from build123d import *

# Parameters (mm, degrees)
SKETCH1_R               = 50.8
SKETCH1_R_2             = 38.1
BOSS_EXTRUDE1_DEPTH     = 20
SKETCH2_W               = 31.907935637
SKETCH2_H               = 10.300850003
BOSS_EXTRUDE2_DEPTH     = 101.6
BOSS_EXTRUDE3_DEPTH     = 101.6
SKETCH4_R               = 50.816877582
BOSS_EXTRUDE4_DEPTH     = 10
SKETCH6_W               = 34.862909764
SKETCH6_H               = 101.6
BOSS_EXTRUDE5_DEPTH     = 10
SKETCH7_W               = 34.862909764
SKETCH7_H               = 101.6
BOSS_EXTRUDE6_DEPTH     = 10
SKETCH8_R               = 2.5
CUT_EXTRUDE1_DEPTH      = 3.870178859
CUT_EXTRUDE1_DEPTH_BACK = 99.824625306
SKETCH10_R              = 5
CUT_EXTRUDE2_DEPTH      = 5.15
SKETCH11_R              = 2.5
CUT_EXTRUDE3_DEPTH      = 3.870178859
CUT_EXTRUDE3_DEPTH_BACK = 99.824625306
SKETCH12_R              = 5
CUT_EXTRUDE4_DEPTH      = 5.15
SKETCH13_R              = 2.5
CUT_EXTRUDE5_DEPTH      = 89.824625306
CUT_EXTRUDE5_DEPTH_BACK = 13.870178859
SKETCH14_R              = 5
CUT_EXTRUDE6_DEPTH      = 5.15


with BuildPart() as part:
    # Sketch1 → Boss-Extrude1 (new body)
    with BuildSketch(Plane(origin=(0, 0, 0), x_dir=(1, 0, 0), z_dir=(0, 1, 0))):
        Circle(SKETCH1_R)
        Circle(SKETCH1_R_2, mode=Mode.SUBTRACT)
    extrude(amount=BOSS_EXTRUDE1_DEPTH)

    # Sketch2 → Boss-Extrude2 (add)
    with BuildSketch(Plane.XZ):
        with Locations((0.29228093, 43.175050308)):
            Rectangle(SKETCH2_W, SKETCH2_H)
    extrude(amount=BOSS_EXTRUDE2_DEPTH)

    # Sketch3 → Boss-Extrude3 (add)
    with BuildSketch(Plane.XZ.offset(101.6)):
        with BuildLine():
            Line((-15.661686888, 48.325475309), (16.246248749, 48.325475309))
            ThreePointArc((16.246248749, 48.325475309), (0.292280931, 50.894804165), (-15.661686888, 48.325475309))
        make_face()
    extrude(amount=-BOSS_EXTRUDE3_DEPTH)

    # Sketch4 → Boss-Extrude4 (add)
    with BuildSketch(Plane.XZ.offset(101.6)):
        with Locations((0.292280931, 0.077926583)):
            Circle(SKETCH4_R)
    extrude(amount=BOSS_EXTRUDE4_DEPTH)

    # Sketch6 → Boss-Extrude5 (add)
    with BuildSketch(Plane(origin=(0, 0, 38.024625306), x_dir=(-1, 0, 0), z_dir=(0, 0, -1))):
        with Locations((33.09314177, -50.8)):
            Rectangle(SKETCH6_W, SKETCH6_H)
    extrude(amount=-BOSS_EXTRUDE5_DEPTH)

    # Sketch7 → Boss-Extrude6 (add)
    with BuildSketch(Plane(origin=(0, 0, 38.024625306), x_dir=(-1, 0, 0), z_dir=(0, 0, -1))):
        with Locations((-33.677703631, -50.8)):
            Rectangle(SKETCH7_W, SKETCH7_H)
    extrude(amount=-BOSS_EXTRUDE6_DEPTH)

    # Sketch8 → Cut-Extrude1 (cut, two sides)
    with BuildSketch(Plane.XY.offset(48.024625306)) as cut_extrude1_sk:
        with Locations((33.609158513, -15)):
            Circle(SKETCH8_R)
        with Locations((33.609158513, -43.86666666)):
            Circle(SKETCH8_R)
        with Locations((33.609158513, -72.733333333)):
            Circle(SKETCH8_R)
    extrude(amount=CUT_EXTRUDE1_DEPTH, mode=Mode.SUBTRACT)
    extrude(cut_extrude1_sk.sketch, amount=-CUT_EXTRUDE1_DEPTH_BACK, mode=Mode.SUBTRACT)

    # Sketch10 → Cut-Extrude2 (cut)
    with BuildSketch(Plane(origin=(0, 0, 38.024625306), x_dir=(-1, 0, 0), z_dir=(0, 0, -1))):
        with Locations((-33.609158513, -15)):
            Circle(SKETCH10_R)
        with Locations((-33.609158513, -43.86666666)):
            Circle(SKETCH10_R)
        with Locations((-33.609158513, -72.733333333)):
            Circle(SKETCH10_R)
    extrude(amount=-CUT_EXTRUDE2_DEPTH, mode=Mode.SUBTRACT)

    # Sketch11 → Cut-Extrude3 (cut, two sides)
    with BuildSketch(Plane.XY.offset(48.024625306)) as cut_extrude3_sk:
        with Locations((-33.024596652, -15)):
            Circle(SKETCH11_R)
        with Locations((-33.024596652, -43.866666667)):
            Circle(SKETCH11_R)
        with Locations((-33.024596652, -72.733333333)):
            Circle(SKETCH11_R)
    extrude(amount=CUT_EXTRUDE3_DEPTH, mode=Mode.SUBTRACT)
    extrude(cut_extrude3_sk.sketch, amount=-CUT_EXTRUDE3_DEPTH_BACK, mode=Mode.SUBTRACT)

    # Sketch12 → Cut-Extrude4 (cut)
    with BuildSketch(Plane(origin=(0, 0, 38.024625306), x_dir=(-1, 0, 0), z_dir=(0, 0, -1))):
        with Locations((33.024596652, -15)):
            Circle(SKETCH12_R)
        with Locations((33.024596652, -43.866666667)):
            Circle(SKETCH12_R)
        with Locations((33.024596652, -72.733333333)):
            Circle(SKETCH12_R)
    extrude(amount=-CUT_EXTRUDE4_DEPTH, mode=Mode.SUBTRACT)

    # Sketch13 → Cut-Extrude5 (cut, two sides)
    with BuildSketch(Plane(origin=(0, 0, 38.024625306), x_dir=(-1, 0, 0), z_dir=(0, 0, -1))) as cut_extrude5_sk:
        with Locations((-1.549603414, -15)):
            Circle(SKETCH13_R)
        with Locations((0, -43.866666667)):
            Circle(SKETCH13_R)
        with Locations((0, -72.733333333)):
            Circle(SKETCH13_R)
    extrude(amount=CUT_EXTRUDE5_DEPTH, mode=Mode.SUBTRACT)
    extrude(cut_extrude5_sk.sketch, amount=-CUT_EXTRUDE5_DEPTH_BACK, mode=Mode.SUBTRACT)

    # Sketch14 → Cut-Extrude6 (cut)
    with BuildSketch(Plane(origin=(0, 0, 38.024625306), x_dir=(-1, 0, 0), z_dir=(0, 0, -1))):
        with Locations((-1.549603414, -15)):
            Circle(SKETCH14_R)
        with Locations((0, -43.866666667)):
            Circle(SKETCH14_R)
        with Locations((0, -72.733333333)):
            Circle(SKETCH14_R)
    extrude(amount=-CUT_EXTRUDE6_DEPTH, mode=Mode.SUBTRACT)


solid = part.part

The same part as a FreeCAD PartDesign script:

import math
import FreeCAD as App
import Part
import Sketcher
from FreeCAD import Vector


def add_polygon(sketch, points):
    """Adds a closed chain of lines whose ends are joined by coincident constraints."""
    first, n = sketch.GeometryCount, len(points)
    for a, b in zip(points, points[1:] + points[:1]):
        sketch.addGeometry(Part.LineSegment(App.Vector(*a, 0), App.Vector(*b, 0)), False)
    for i in range(n):
        sketch.addConstraint(Sketcher.Constraint("Coincident", first + i, 2, first + (i + 1) % n, 1))

doc = App.newDocument("Part")
params = doc.addObject("Spreadsheet::Sheet", "Params")
for row, (alias, value) in enumerate([
    ("sketch1_diameter", "101.6 mm"),
    ("sketch1_diameter2", "76.2 mm"),
    ("pad1_length", "20 mm"),
    ("pad2_length", "101.6 mm"),
    ("pad3_length", "101.6 mm"),
    ("pad4_length", "10 mm"),
    ("sketch5_height", "101.6 mm"),
    ("pad5_length", "10 mm"),
    ("sketch6_height", "101.6 mm"),
    ("pad6_length", "10 mm"),
    ("sketch7_diameter", "5 mm"),
    ("sketch8_diameter", "10 mm"),
    ("pocket2_length", "5.15 mm"),
    ("sketch9_diameter", "5 mm"),
    ("sketch10_diameter", "10 mm"),
    ("pocket4_length", "5.15 mm"),
    ("sketch11_diameter", "5 mm"),
    ("sketch12_diameter", "10 mm"),
    ("pocket6_length", "5.15 mm"),
], start=1):
    params.set(f"A{row}", alias)
    params.set(f"B{row}", "=" + value)
    params.setAlias(f"B{row}", alias)

body = doc.addObject("PartDesign::Body", "Body")

# Sketch on XZ plane
sketch1 = body.newObject("Sketcher::SketchObject", "Sketch")
sketch1.AttachmentSupport = (doc.getObject("XZ_Plane"), [""])
sketch1.MapMode = "FlatFace"
sketch1.addGeometry(Part.Circle(Vector(0, 0, 0), Vector(0, 0, 1), 51), False)
sketch1.addGeometry(Part.Circle(Vector(0, 0, 0), Vector(0, 0, 1), 38), False)
sketch1.addConstraint(Sketcher.Constraint("Coincident", 0, 3, -1, 1))
sketch1.addConstraint(Sketcher.Constraint("Coincident", 1, 3, -1, 1))
sketch1.addConstraint(Sketcher.Constraint("Diameter", 0, 101.6))
sketch1.addConstraint(Sketcher.Constraint("Diameter", 1, 76.2))
sketch1.setExpression("Constraints[2]", "Params.sketch1_diameter")
sketch1.setExpression("Constraints[3]", "Params.sketch1_diameter2")
pad1 = body.newObject("PartDesign::Pad", "Pad")
pad1.Profile = sketch1
pad1.setExpression("Length", "Params.pad1_length")
pad1.Reversed = True

# Sketch on XZ plane
sketch2 = body.newObject("Sketcher::SketchObject", "Sketch001")
sketch2.AttachmentSupport = (doc.getObject("XZ_Plane"), [""])
sketch2.MapMode = "FlatFace"
add_polygon(sketch2, [(-16, 48), (-16, 38), (16, 38), (16, 48)])  # lines 0-3
sketch2.addConstraint(Sketcher.Constraint("Vertical", 0))
sketch2.addConstraint(Sketcher.Constraint("Horizontal", 1))
sketch2.addConstraint(Sketcher.Constraint("Vertical", 2))
sketch2.addConstraint(Sketcher.Constraint("Horizontal", 3))
sketch2.addConstraint(Sketcher.Constraint("DistanceY", 0, 2, 0, 1, 10.30085))
sketch2.addConstraint(Sketcher.Constraint("DistanceX", 1, 1, 1, 2, 31.907936))
sketch2.addConstraint(Sketcher.Constraint("DistanceX", -1, 1, 1, 2, 16.246249))
sketch2.addConstraint(Sketcher.Constraint("DistanceY", -1, 1, 0, 2, 38.024625))
pad2 = body.newObject("PartDesign::Pad", "Pad001")
pad2.Profile = sketch2
pad2.setExpression("Length", "Params.pad2_length")

# Sketch on XZ plane
sketch3 = body.newObject("Sketcher::SketchObject", "Sketch002")
sketch3.AttachmentSupport = (doc.getObject("XZ_Plane"), [""])
sketch3.MapMode = "FlatFace"
sketch3.AttachmentOffset = App.Placement(Vector(0, 0, 101.6), App.Rotation())
sketch3.addGeometry(Part.LineSegment(Vector(-16, 48, 0), Vector(16, 48, 0)), False)
sketch3.addGeometry(Part.ArcOfCircle(Part.Circle(Vector(0, 0, 0), Vector(0, 0, 1), 51), math.radians(72), math.radians(108)), False)
sketch3.addConstraint(Sketcher.Constraint("Coincident", 0, 1, 1, 2))
sketch3.addConstraint(Sketcher.Constraint("Coincident", 1, 1, 0, 2))
sketch3.addConstraint(Sketcher.Constraint("Horizontal", 0))
sketch3.addConstraint(Sketcher.Constraint("Radius", 1, 50.816878))
sketch3.addConstraint(Sketcher.Constraint("DistanceX", 0, 1, 0, 2, 31.907936))
sketch3.addConstraint(Sketcher.Constraint("DistanceX", -1, 1, 1, 3, 0.292281))
sketch3.addConstraint(Sketcher.Constraint("DistanceY", -1, 1, 1, 3, 0.077927))
pad3 = body.newObject("PartDesign::Pad", "Pad002")
pad3.Profile = sketch3
pad3.setExpression("Length", "Params.pad3_length")
pad3.Reversed = True

# Sketch on XZ plane
sketch4 = body.newObject("Sketcher::SketchObject", "Sketch003")
sketch4.AttachmentSupport = (doc.getObject("XZ_Plane"), [""])
sketch4.MapMode = "FlatFace"
sketch4.AttachmentOffset = App.Placement(Vector(0, 0, 101.6), App.Rotation())
sketch4.addGeometry(Part.Circle(Vector(0, 0, 0), Vector(0, 0, 1), 51), False)
sketch4.addConstraint(Sketcher.Constraint("Diameter", 0, 101.633755))
sketch4.addConstraint(Sketcher.Constraint("DistanceX", -1, 1, 0, 3, 0.292281))
sketch4.addConstraint(Sketcher.Constraint("DistanceY", -1, 1, 0, 3, 0.077927))
pad4 = body.newObject("PartDesign::Pad", "Pad003")
pad4.Profile = sketch4
pad4.setExpression("Length", "Params.pad4_length")

# Sketch on XY plane
sketch5 = body.newObject("Sketcher::SketchObject", "Sketch004")
sketch5.AttachmentSupport = (doc.getObject("XY_Plane"), [""])
sketch5.MapMode = "FlatFace"
sketch5.AttachmentOffset = App.Placement(Vector(0, 0, 38.024625), App.Rotation())
add_polygon(sketch5, [(-16, 0), (-16, -102), (-51, -102), (-51, 0)])  # lines 0-3
sketch5.addConstraint(Sketcher.Constraint("Vertical", 0))
sketch5.addConstraint(Sketcher.Constraint("Horizontal", 1))
sketch5.addConstraint(Sketcher.Constraint("Vertical", 2))
sketch5.addConstraint(Sketcher.Constraint("Horizontal", 3))
sketch5.addConstraint(Sketcher.Constraint("PointOnObject", 2, 2, -1))
sketch5.addConstraint(Sketcher.Constraint("DistanceY", 0, 2, 0, 1, 101.6))
sketch5.addConstraint(Sketcher.Constraint("DistanceX", 1, 2, 1, 1, 34.86291))
sketch5.addConstraint(Sketcher.Constraint("DistanceX", 0, 2, -1, 1, 15.661687))
sketch5.setExpression("Constraints[9]", "Params.sketch5_height")
pad5 = body.newObject("PartDesign::Pad", "Pad004")
pad5.Profile = sketch5
pad5.setExpression("Length", "Params.pad5_length")

# Sketch on XY plane
sketch6 = body.newObject("Sketcher::SketchObject", "Sketch005")
sketch6.AttachmentSupport = (doc.getObject("XY_Plane"), [""])
sketch6.MapMode = "FlatFace"
sketch6.AttachmentOffset = App.Placement(Vector(0, 0, 38.024625), App.Rotation())
add_polygon(sketch6, [(51, 0), (51, -102), (16, -102), (16, 0)])  # lines 0-3
sketch6.addConstraint(Sketcher.Constraint("Vertical", 0))
sketch6.addConstraint(Sketcher.Constraint("Horizontal", 1))
sketch6.addConstraint(Sketcher.Constraint("Vertical", 2))
sketch6.addConstraint(Sketcher.Constraint("Horizontal", 3))
sketch6.addConstraint(Sketcher.Constraint("PointOnObject", 2, 2, -1))
sketch6.addConstraint(Sketcher.Constraint("DistanceY", 0, 2, 0, 1, 101.6))
sketch6.addConstraint(Sketcher.Constraint("DistanceX", 1, 2, 1, 1, 34.86291))
sketch6.addConstraint(Sketcher.Constraint("DistanceX", -1, 1, 0, 2, 51.109159))
sketch6.setExpression("Constraints[9]", "Params.sketch6_height")
pad6 = body.newObject("PartDesign::Pad", "Pad005")
pad6.Profile = sketch6
pad6.setExpression("Length", "Params.pad6_length")

# Sketch on XY plane
sketch7 = body.newObject("Sketcher::SketchObject", "Sketch006")
sketch7.AttachmentSupport = (doc.getObject("XY_Plane"), [""])
sketch7.MapMode = "FlatFace"
sketch7.AttachmentOffset = App.Placement(Vector(0, 0, 48.024625), App.Rotation())
sketch7.addGeometry(Part.Circle(Vector(33.6, -15, 0), Vector(0, 0, 1), 2.5), False)
sketch7.addGeometry(Part.Circle(Vector(33.6, -43.9, 0), Vector(0, 0, 1), 2.5), False)
sketch7.addGeometry(Part.Circle(Vector(33.6, -72.7, 0), Vector(0, 0, 1), 2.5), False)
sketch7.addConstraint(Sketcher.Constraint("Equal", 0, 1))
sketch7.addConstraint(Sketcher.Constraint("Equal", 1, 2))
sketch7.addConstraint(Sketcher.Constraint("Vertical", 0, 3, 1, 3))
sketch7.addConstraint(Sketcher.Constraint("Vertical", 1, 3, 2, 3))
sketch7.addConstraint(Sketcher.Constraint("Diameter", 0, 5.0))
sketch7.addConstraint(Sketcher.Constraint("DistanceY", 0, 3, -1, 1, 15.0))
sketch7.addConstraint(Sketcher.Constraint("DistanceX", -1, 1, 0, 3, 33.609159))
sketch7.addConstraint(Sketcher.Constraint("DistanceY", 1, 3, -1, 1, 43.866667))
sketch7.addConstraint(Sketcher.Constraint("DistanceY", 2, 3, -1, 1, 72.733333))
sketch7.setExpression("Constraints[4]", "Params.sketch7_diameter")
pocket1 = body.newObject("PartDesign::Pocket", "Pocket")
pocket1.Profile = sketch7
pocket1.Type = "ThroughAll"
pocket1.Midplane = True

# Sketch on XY plane
sketch8 = body.newObject("Sketcher::SketchObject", "Sketch007")
sketch8.AttachmentSupport = (doc.getObject("XY_Plane"), [""])
sketch8.MapMode = "FlatFace"
sketch8.AttachmentOffset = App.Placement(Vector(0, 0, 38.024625), App.Rotation())
sketch8.addGeometry(Part.Circle(Vector(34, -15, 0), Vector(0, 0, 1), 5), False)
sketch8.addGeometry(Part.Circle(Vector(34, -44, 0), Vector(0, 0, 1), 5), False)
sketch8.addGeometry(Part.Circle(Vector(34, -73, 0), Vector(0, 0, 1), 5), False)
sketch8.addConstraint(Sketcher.Constraint("Equal", 0, 1))
sketch8.addConstraint(Sketcher.Constraint("Equal", 1, 2))
sketch8.addConstraint(Sketcher.Constraint("Vertical", 0, 3, 1, 3))
sketch8.addConstraint(Sketcher.Constraint("Vertical", 1, 3, 2, 3))
sketch8.addConstraint(Sketcher.Constraint("Diameter", 0, 10.0))
sketch8.addConstraint(Sketcher.Constraint("DistanceY", 0, 3, -1, 1, 15.0))
sketch8.addConstraint(Sketcher.Constraint("DistanceX", -1, 1, 0, 3, 33.609159))
sketch8.addConstraint(Sketcher.Constraint("DistanceY", 1, 3, -1, 1, 43.866667))
sketch8.addConstraint(Sketcher.Constraint("DistanceY", 2, 3, -1, 1, 72.733333))
sketch8.setExpression("Constraints[4]", "Params.sketch8_diameter")
pocket2 = body.newObject("PartDesign::Pocket", "Pocket001")
pocket2.Profile = sketch8
pocket2.setExpression("Length", "Params.pocket2_length")
pocket2.Reversed = True

# Sketch on XY plane
sketch9 = body.newObject("Sketcher::SketchObject", "Sketch008")
sketch9.AttachmentSupport = (doc.getObject("XY_Plane"), [""])
sketch9.MapMode = "FlatFace"
sketch9.AttachmentOffset = App.Placement(Vector(0, 0, 48.024625), App.Rotation())
sketch9.addGeometry(Part.Circle(Vector(-33, -15, 0), Vector(0, 0, 1), 2.5), False)
sketch9.addGeometry(Part.Circle(Vector(-33, -43.9, 0), Vector(0, 0, 1), 2.5), False)
sketch9.addGeometry(Part.Circle(Vector(-33, -72.7, 0), Vector(0, 0, 1), 2.5), False)
sketch9.addConstraint(Sketcher.Constraint("Equal", 0, 1))
sketch9.addConstraint(Sketcher.Constraint("Equal", 1, 2))
sketch9.addConstraint(Sketcher.Constraint("Vertical", 0, 3, 1, 3))
sketch9.addConstraint(Sketcher.Constraint("Vertical", 1, 3, 2, 3))
sketch9.addConstraint(Sketcher.Constraint("Diameter", 0, 5.0))
sketch9.addConstraint(Sketcher.Constraint("DistanceY", 0, 3, -1, 1, 15.0))
sketch9.addConstraint(Sketcher.Constraint("DistanceX", 0, 3, -1, 1, 33.024597))
sketch9.addConstraint(Sketcher.Constraint("DistanceY", 1, 3, -1, 1, 43.866667))
sketch9.addConstraint(Sketcher.Constraint("DistanceY", 2, 3, -1, 1, 72.733333))
sketch9.setExpression("Constraints[4]", "Params.sketch9_diameter")
pocket3 = body.newObject("PartDesign::Pocket", "Pocket002")
pocket3.Profile = sketch9
pocket3.Type = "ThroughAll"
pocket3.Midplane = True

# Sketch on XY plane
sketch10 = body.newObject("Sketcher::SketchObject", "Sketch009")
sketch10.AttachmentSupport = (doc.getObject("XY_Plane"), [""])
sketch10.MapMode = "FlatFace"
sketch10.AttachmentOffset = App.Placement(Vector(0, 0, 38.024625), App.Rotation())
sketch10.addGeometry(Part.Circle(Vector(-33, -15, 0), Vector(0, 0, 1), 5), False)
sketch10.addGeometry(Part.Circle(Vector(-33, -44, 0), Vector(0, 0, 1), 5), False)
sketch10.addGeometry(Part.Circle(Vector(-33, -73, 0), Vector(0, 0, 1), 5), False)
sketch10.addConstraint(Sketcher.Constraint("Equal", 0, 1))
sketch10.addConstraint(Sketcher.Constraint("Equal", 1, 2))
sketch10.addConstraint(Sketcher.Constraint("Vertical", 0, 3, 1, 3))
sketch10.addConstraint(Sketcher.Constraint("Vertical", 1, 3, 2, 3))
sketch10.addConstraint(Sketcher.Constraint("Diameter", 0, 10.0))
sketch10.addConstraint(Sketcher.Constraint("DistanceY", 0, 3, -1, 1, 15.0))
sketch10.addConstraint(Sketcher.Constraint("DistanceX", 0, 3, -1, 1, 33.024597))
sketch10.addConstraint(Sketcher.Constraint("DistanceY", 1, 3, -1, 1, 43.866667))
sketch10.addConstraint(Sketcher.Constraint("DistanceY", 2, 3, -1, 1, 72.733333))
sketch10.setExpression("Constraints[4]", "Params.sketch10_diameter")
pocket4 = body.newObject("PartDesign::Pocket", "Pocket003")
pocket4.Profile = sketch10
pocket4.setExpression("Length", "Params.pocket4_length")
pocket4.Reversed = True

# Sketch on XY plane
sketch11 = body.newObject("Sketcher::SketchObject", "Sketch010")
sketch11.AttachmentSupport = (doc.getObject("XY_Plane"), [""])
sketch11.MapMode = "FlatFace"
sketch11.AttachmentOffset = App.Placement(Vector(0, 0, 38.024625), App.Rotation())
sketch11.addGeometry(Part.Circle(Vector(1.5, -15, 0), Vector(0, 0, 1), 2.5), False)
sketch11.addGeometry(Part.Circle(Vector(0, -43.9, 0), Vector(0, 0, 1), 2.5), False)
sketch11.addGeometry(Part.Circle(Vector(0, -72.7, 0), Vector(0, 0, 1), 2.5), False)
sketch11.addConstraint(Sketcher.Constraint("Equal", 0, 1))
sketch11.addConstraint(Sketcher.Constraint("Equal", 1, 2))
sketch11.addConstraint(Sketcher.Constraint("PointOnObject", 1, 3, -2))
sketch11.addConstraint(Sketcher.Constraint("PointOnObject", 2, 3, -2))
sketch11.addConstraint(Sketcher.Constraint("Diameter", 0, 5.0))
sketch11.addConstraint(Sketcher.Constraint("DistanceY", 0, 3, -1, 1, 15.0))
sketch11.addConstraint(Sketcher.Constraint("DistanceX", -1, 1, 0, 3, 1.549603))
sketch11.addConstraint(Sketcher.Constraint("DistanceY", 1, 3, -1, 1, 43.866667))
sketch11.addConstraint(Sketcher.Constraint("DistanceY", 2, 3, -1, 1, 72.733333))
sketch11.setExpression("Constraints[4]", "Params.sketch11_diameter")
pocket5 = body.newObject("PartDesign::Pocket", "Pocket004")
pocket5.Profile = sketch11
pocket5.Type = "ThroughAll"
pocket5.Midplane = True

# Sketch on XY plane
sketch12 = body.newObject("Sketcher::SketchObject", "Sketch011")
sketch12.AttachmentSupport = (doc.getObject("XY_Plane"), [""])
sketch12.MapMode = "FlatFace"
sketch12.AttachmentOffset = App.Placement(Vector(0, 0, 38.024625), App.Rotation())
sketch12.addGeometry(Part.Circle(Vector(2, -15, 0), Vector(0, 0, 1), 5), False)
sketch12.addGeometry(Part.Circle(Vector(0, -44, 0), Vector(0, 0, 1), 5), False)
sketch12.addGeometry(Part.Circle(Vector(0, -73, 0), Vector(0, 0, 1), 5), False)
sketch12.addConstraint(Sketcher.Constraint("Equal", 0, 1))
sketch12.addConstraint(Sketcher.Constraint("Equal", 1, 2))
sketch12.addConstraint(Sketcher.Constraint("PointOnObject", 1, 3, -2))
sketch12.addConstraint(Sketcher.Constraint("PointOnObject", 2, 3, -2))
sketch12.addConstraint(Sketcher.Constraint("Diameter", 0, 10.0))
sketch12.addConstraint(Sketcher.Constraint("DistanceY", 0, 3, -1, 1, 15.0))
sketch12.addConstraint(Sketcher.Constraint("DistanceX", -1, 1, 0, 3, 1.549603))
sketch12.addConstraint(Sketcher.Constraint("DistanceY", 1, 3, -1, 1, 43.866667))
sketch12.addConstraint(Sketcher.Constraint("DistanceY", 2, 3, -1, 1, 72.733333))
sketch12.setExpression("Constraints[4]", "Params.sketch12_diameter")
pocket6 = body.newObject("PartDesign::Pocket", "Pocket005")
pocket6.Profile = sketch12
pocket6.setExpression("Length", "Params.pocket6_length")
pocket6.Reversed = True

doc.recompute()
